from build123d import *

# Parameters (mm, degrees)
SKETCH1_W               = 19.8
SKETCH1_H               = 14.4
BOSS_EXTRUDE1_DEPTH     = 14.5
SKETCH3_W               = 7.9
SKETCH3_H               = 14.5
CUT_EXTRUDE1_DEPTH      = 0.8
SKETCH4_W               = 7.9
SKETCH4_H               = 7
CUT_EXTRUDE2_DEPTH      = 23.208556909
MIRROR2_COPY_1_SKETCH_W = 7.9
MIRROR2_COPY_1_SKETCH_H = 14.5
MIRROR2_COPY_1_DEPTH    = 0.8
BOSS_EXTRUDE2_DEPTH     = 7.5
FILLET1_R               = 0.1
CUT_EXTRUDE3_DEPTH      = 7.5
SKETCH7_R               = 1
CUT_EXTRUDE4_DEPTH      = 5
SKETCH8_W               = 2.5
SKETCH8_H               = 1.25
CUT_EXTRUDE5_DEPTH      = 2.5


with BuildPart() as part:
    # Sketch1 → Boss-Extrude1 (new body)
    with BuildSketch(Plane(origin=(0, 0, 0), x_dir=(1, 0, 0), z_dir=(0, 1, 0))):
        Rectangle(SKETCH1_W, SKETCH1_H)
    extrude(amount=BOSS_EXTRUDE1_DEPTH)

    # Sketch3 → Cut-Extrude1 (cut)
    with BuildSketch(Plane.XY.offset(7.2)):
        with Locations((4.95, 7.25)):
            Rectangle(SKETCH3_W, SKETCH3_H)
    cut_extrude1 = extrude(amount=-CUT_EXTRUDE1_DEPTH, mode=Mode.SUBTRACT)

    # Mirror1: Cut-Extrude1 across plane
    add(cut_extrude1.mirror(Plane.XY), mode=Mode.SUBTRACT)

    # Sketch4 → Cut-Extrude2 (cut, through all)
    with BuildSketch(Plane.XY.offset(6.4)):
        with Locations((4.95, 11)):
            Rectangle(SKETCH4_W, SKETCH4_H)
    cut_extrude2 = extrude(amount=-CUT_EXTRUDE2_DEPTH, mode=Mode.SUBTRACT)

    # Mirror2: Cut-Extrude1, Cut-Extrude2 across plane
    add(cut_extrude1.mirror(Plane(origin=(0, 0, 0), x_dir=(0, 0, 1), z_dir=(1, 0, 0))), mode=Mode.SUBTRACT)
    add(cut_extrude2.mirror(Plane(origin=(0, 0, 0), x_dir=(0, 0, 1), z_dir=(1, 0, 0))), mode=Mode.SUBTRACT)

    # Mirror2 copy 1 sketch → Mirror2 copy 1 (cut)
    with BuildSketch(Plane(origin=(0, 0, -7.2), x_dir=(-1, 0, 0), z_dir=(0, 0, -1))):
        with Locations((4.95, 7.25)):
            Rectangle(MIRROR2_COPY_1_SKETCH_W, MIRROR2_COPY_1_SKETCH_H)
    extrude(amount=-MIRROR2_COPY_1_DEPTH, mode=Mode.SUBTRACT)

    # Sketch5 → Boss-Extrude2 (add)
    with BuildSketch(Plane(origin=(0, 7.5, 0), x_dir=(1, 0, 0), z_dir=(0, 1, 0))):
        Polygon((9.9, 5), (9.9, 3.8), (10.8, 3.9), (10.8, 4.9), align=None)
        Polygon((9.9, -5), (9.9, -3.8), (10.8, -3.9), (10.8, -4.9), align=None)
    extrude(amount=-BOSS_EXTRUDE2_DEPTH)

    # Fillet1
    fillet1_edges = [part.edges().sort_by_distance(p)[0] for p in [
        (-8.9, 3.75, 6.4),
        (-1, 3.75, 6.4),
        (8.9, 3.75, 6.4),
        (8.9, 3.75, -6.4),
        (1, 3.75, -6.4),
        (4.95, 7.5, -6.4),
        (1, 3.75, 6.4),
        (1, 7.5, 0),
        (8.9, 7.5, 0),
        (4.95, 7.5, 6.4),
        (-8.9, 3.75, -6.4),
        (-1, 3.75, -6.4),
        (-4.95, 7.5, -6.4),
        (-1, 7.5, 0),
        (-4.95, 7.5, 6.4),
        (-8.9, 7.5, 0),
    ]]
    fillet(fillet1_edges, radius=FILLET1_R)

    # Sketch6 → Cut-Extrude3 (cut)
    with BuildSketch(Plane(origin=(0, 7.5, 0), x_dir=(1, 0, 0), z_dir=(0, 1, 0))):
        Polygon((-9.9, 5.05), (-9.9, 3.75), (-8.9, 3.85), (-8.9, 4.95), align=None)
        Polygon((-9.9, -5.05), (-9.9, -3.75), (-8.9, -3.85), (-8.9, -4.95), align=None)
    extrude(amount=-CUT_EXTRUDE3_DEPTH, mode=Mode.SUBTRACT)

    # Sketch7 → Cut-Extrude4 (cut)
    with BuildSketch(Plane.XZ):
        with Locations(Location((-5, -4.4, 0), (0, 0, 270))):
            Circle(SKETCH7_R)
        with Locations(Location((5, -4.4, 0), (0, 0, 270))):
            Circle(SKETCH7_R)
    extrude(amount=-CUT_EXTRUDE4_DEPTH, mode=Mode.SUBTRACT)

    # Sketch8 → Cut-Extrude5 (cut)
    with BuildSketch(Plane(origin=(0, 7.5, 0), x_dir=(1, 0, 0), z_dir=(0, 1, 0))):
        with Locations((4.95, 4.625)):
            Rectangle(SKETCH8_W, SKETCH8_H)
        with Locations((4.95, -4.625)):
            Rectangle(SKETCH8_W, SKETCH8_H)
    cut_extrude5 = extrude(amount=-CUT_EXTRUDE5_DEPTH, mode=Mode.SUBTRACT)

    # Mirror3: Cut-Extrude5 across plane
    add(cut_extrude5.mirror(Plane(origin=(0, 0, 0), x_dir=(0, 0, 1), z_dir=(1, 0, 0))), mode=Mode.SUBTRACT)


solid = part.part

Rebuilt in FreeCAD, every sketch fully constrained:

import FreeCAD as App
import Part
import Sketcher


def edges_at(feature, points):
    """Names of the edges that pass closest to the given points."""
    edges = feature.Shape.Edges
    near = lambda p: min(range(len(edges)), key=lambda i: edges[i].distToShape(Part.Vertex(*p))[0])
    return sorted({f"Edge{near(p) + 1}" for p in points})

doc = App.newDocument("Part")
body = doc.addObject("PartDesign::Body", "Body")

# Sketch on XZ plane
sketch1 = body.newObject("Sketcher::SketchObject", "Sketch")
sketch1.AttachmentSupport = (doc.getObject("XZ_Plane"), [""])
sketch1.MapMode = "FlatFace"
sketch1.addGeometry(Part.LineSegment(App.Vector(-10, -7, 0), App.Vector(-10, 7, 0)), False)
sketch1.addGeometry(Part.LineSegment(App.Vector(-10, 7, 0), App.Vector(10, 7, 0)), False)
sketch1.addGeometry(Part.LineSegment(App.Vector(10, 7, 0), App.Vector(10, -7, 0)), False)
sketch1.addGeometry(Part.LineSegment(App.Vector(10, -7, 0), App.Vector(-10, -7, 0)), False)
sketch1.addConstraint(Sketcher.Constraint("Coincident", 0, 2, 1, 1))
sketch1.addConstraint(Sketcher.Constraint("Coincident", 1, 2, 2, 1))
sketch1.addConstraint(Sketcher.Constraint("Coincident", 2, 2, 3, 1))
sketch1.addConstraint(Sketcher.Constraint("Coincident", 3, 2, 0, 1))
sketch1.addConstraint(Sketcher.Constraint("Vertical", 0))
sketch1.addConstraint(Sketcher.Constraint("Horizontal", 1))
sketch1.addConstraint(Sketcher.Constraint("Vertical", 2))
sketch1.addConstraint(Sketcher.Constraint("Horizontal", 3))
sketch1.addConstraint(Sketcher.Constraint("Symmetric", 0, 2, 2, 2, -1, 1))
sketch1.addConstraint(Sketcher.Constraint("DistanceX", 1, 1, 1, 2, 19.8))
sketch1.addConstraint(Sketcher.Constraint("DistanceY", 0, 1, 0, 2, 14.4))
pad1 = body.newObject("PartDesign::Pad", "Pad")
pad1.Profile = sketch1
pad1.Length = 14.5
pad1.Reversed = True

# Sketch on XY plane
sketch2 = body.newObject("Sketcher::SketchObject", "Sketch001")
sketch2.AttachmentSupport = (doc.getObject("XY_Plane"), [""])
sketch2.MapMode = "FlatFace"
sketch2.AttachmentOffset = App.Placement(App.Vector(0, 0, 7.2), App.Rotation())
sketch2.addGeometry(Part.LineSegment(App.Vector(1, 14, 0), App.Vector(1, 0, 0)), False)
sketch2.addGeometry(Part.LineSegment(App.Vector(1, 0, 0), App.Vector(9, 0, 0)), False)
sketch2.addGeometry(Part.LineSegment(App.Vector(9, 0, 0), App.Vector(9, 14, 0)), False)
sketch2.addGeometry(Part.LineSegment(App.Vector(9, 14, 0), App.Vector(1, 14, 0)), False)
sketch2.addConstraint(Sketcher.Constraint("Coincident", 0, 2, 1, 1))
sketch2.addConstraint(Sketcher.Constraint("Coincident", 1, 2, 2, 1))
sketch2.addConstraint(Sketcher.Constraint("Coincident", 2, 2, 3, 1))
sketch2.addConstraint(Sketcher.Constraint("Coincident", 3, 2, 0, 1))
sketch2.addConstraint(Sketcher.Constraint("Vertical", 0))
sketch2.addConstraint(Sketcher.Constraint("Horizontal", 1))
sketch2.addConstraint(Sketcher.Constraint("Vertical", 2))
sketch2.addConstraint(Sketcher.Constraint("Horizontal", 3))
sketch2.addConstraint(Sketcher.Constraint("PointOnObject", 0, 2, -1))
sketch2.addConstraint(Sketcher.Constraint("DistanceX", 1, 1, 1, 2, 7.9))
sketch2.addConstraint(Sketcher.Constraint("DistanceY", 0, 2, 0, 1, 14.5))
sketch2.addConstraint(Sketcher.Constraint("DistanceX", -1, 1, 0, 2, 1.0))
pocket1 = body.newObject("PartDesign::Pocket", "Pocket")
pocket1.Profile = sketch2
pocket1.Length = 0.8
doc.recompute()

mirrored = body.newObject("PartDesign::Mirrored", "Mirrored")
mirrored.Originals = [pocket1]
mirrored.MirrorPlane = (doc.getObject("XY_Plane"), [""])
body.Tip = mirrored

# Sketch on XY plane
sketch3 = body.newObject("Sketcher::SketchObject", "Sketch002")
sketch3.AttachmentSupport = (doc.getObject("XY_Plane"), [""])
sketch3.MapMode = "FlatFace"
sketch3.AttachmentOffset = App.Placement(App.Vector(0, 0, 6.4), App.Rotation())
sketch3.addGeometry(Part.LineSegment(App.Vector(1, 14, 0), App.Vector(1, 8, 0)), False)
sketch3.addGeometry(Part.LineSegment(App.Vector(1, 8, 0), App.Vector(9, 8, 0)), False)
sketch3.addGeometry(Part.LineSegment(App.Vector(9, 8, 0), App.Vector(9, 14, 0)), False)
sketch3.addGeometry(Part.LineSegment(App.Vector(9, 14, 0), App.Vector(1, 14, 0)), False)
sketch3.addConstraint(Sketcher.Constraint("Coincident", 0, 2, 1, 1))
sketch3.addConstraint(Sketcher.Constraint("Coincident", 1, 2, 2, 1))
sketch3.addConstraint(Sketcher.Constraint("Coincident", 2, 2, 3, 1))
sketch3.addConstraint(Sketcher.Constraint("Coincident", 3, 2, 0, 1))
sketch3.addConstraint(Sketcher.Constraint("Vertical", 0))
sketch3.addConstraint(Sketcher.Constraint("Horizontal", 1))
sketch3.addConstraint(Sketcher.Constraint("Vertical", 2))
sketch3.addConstraint(Sketcher.Constraint("Horizontal", 3))
sketch3.addConstraint(Sketcher.Constraint("DistanceY", 0, 2, 0, 1, 7.0))
sketch3.addConstraint(Sketcher.Constraint("DistanceX", 1, 1, 1, 2, 7.9))
sketch3.addConstraint(Sketcher.Constraint("DistanceX", -1, 1, 0, 2, 1.0))
sketch3.addConstraint(Sketcher.Constraint("DistanceY", -1, 1, 0, 2, 7.5))
pocket2 = body.newObject("PartDesign::Pocket", "Pocket001")
pocket2.Profile = sketch3
pocket2.Type = "ThroughAll"
doc.recompute()

mirrored2 = body.newObject("PartDesign::Mirrored", "Mirrored001")
mirrored2.Originals = [pocket1, pocket2]
mirrored2.MirrorPlane = (doc.getObject("YZ_Plane"), [""])
body.Tip = mirrored2

# Sketch on XY plane
sketch4 = body.newObject("Sketcher::SketchObject", "Sketch003")
sketch4.AttachmentSupport = (doc.getObject("XY_Plane"), [""])
sketch4.MapMode = "FlatFace"
sketch4.AttachmentOffset = App.Placement(App.Vector(0, 0, -7.2), App.Rotation())
sketch4.addGeometry(Part.LineSegment(App.Vector(-1, 14, 0), App.Vector(-1, 0, 0)), False)
sketch4.addGeometry(Part.LineSegment(App.Vector(-1, 0, 0), App.Vector(-9, 0, 0)), False)
sketch4.addGeometry(Part.LineSegment(App.Vector(-9, 0, 0), App.Vector(-9, 14, 0)), False)
sketch4.addGeometry(Part.LineSegment(App.Vector(-9, 14, 0), App.Vector(-1, 14, 0)), False)
sketch4.addConstraint(Sketcher.Constraint("Coincident", 0, 2, 1, 1))
sketch4.addConstraint(Sketcher.Constraint("Coincident", 1, 2, 2, 1))
sketch4.addConstraint(Sketcher.Constraint("Coincident", 2, 2, 3, 1))
sketch4.addConstraint(Sketcher.Constraint("Coincident", 3, 2, 0, 1))
sketch4.addConstraint(Sketcher.Constraint("Vertical", 0))
sketch4.addConstraint(Sketcher.Constraint("Horizontal", 1))
sketch4.addConstraint(Sketcher.Constraint("Vertical", 2))
sketch4.addConstraint(Sketcher.Constraint("Horizontal", 3))
sketch4.addConstraint(Sketcher.Constraint("PointOnObject", 0, 2, -1))
sketch4.addConstraint(Sketcher.Constraint("DistanceX", 1, 2, 1, 1, 7.9))
sketch4.addConstraint(Sketcher.Constraint("DistanceY", 0, 2, 0, 1, 14.5))
sketch4.addConstraint(Sketcher.Constraint("DistanceX", 0, 2, -1, 1, 1.0))
pocket3 = body.newObject("PartDesign::Pocket", "Pocket002")
pocket3.Profile = sketch4
pocket3.Length = 0.8
pocket3.Reversed = True

# Sketch on XZ plane
sketch5 = body.newObject("Sketcher::SketchObject", "Sketch004")
sketch5.AttachmentSupport = (doc.getObject("XZ_Plane"), [""])
sketch5.MapMode = "FlatFace"
sketch5.AttachmentOffset = App.Placement(App.Vector(0, 0, -7.5), App.Rotation())
sketch5.addGeometry(Part.LineSegment(App.Vector(9.9, -5, 0), App.Vector(9.9, -3.8, 0)), False)
sketch5.addGeometry(Part.LineSegment(App.Vector(9.9, -3.8, 0), App.Vector(10.8, -3.9, 0)), False)
sketch5.addGeometry(Part.LineSegment(App.Vector(10.8, -3.9, 0), App.Vector(10.8, -4.9, 0)), False)
sketch5.addGeometry(Part.LineSegment(App.Vector(10.8, -4.9, 0), App.Vector(9.9, -5, 0)), False)
sketch5.addGeometry(Part.LineSegment(App.Vector(9.9, 3.8, 0), App.Vector(9.9, 5, 0)), False)
sketch5.addGeometry(Part.LineSegment(App.Vector(9.9, 5, 0), App.Vector(10.8, 4.9, 0)), False)
sketch5.addGeometry(Part.LineSegment(App.Vector(10.8, 4.9, 0), App.Vector(10.8, 3.9, 0)), False)
sketch5.addGeometry(Part.LineSegment(App.Vector(10.8, 3.9, 0), App.Vector(9.9, 3.8, 0)), False)
sketch5.addConstraint(Sketcher.Constraint("Coincident", 0, 2, 1, 1))
sketch5.addConstraint(Sketcher.Constraint("Coincident", 1, 2, 2, 1))
sketch5.addConstraint(Sketcher.Constraint("Coincident", 2, 2, 3, 1))
sketch5.addConstraint(Sketcher.Constraint("Coincident", 3, 2, 0, 1))
sketch5.addConstraint(Sketcher.Constraint("Coincident", 4, 2, 5, 1))
sketch5.addConstraint(Sketcher.Constraint("Coincident", 5, 2, 6, 1))
sketch5.addConstraint(Sketcher.Constraint("Coincident", 6, 2, 7, 1))
sketch5.addConstraint(Sketcher.Constraint("Coincident", 7, 2, 4, 1))
sketch5.addConstraint(Sketcher.Constraint("Vertical", 0))
sketch5.addConstraint(Sketcher.Constraint("Vertical", 2))
sketch5.addConstraint(Sketcher.Constraint("Vertical", 4))
sketch5.addConstraint(Sketcher.Constraint("Vertical", 6))
sketch5.addConstraint(Sketcher.Constraint("Symmetric", 3, 2, 4, 2, -1))
sketch5.addConstraint(Sketcher.Constraint("Symmetric", 2, 2, 5, 2, -1))
sketch5.addConstraint(Sketcher.Constraint("Parallel", 1, 5))
sketch5.addConstraint(Sketcher.Constraint("Parallel", 3, 7))
sketch5.addConstraint(Sketcher.Constraint("Equal", 0, 4))
sketch5.addConstraint(Sketcher.Constraint("DistanceY", 2, 2, 2, 1, 1.0))
sketch5.addConstraint(Sketcher.Constraint("DistanceY", 0, 1, 0, 2, 1.2))
sketch5.addConstraint(Sketcher.Constraint("DistanceY", 3, 2, -1, 1, 5.0))
sketch5.addConstraint(Sketcher.Constraint("DistanceX", -1, 1, 0, 2, 9.9))
sketch5.addConstraint(Sketcher.Constraint("DistanceX", -1, 1, 1, 2, 10.8))
pad2 = body.newObject("PartDesign::Pad", "Pad001")
pad2.Profile = sketch5
pad2.Length = 7.5
doc.recompute()

fillet = body.newObject("PartDesign::Fillet", "Fillet")
fillet.Base = (pad2, edges_at(pad2, [
    (-8.9, 3.75, 6.4),
    (-1, 3.75, 6.4),
    (8.9, 3.75, 6.4),
    (8.9, 3.75, -6.4),
    (1, 3.75, -6.4),
    (4.95, 7.5, -6.4),
    (1, 3.75, 6.4),
    (1, 7.5, 0),
    (8.9, 7.5, 0),
    (4.95, 7.5, 6.4),
    (-8.9, 3.75, -6.4),
    (-1, 3.75, -6.4),
    (-4.95, 7.5, -6.4),
    (-1, 7.5, 0),
    (-4.95, 7.5, 6.4),
    (-8.9, 7.5, 0),
]))
fillet.Radius = 0.1

# Sketch on XZ plane
sketch6 = body.newObject("Sketcher::SketchObject", "Sketch005")
sketch6.AttachmentSupport = (doc.getObject("XZ_Plane"), [""])
sketch6.MapMode = "FlatFace"
sketch6.AttachmentOffset = App.Placement(App.Vector(0, 0, -7.5), App.Rotation())
sketch6.addGeometry(Part.LineSegment(App.Vector(-9.9, -5, 0), App.Vector(-9.9, -3.8, 0)), False)
sketch6.addGeometry(Part.LineSegment(App.Vector(-9.9, -3.8, 0), App.Vector(-8.9, -3.9, 0)), False)
sketch6.addGeometry(Part.LineSegment(App.Vector(-8.9, -3.9, 0), App.Vector(-8.9, -5, 0)), False)
sketch6.addGeometry(Part.LineSegment(App.Vector(-8.9, -5, 0), App.Vector(-9.9, -5, 0)), False)
sketch6.addGeometry(Part.LineSegment(App.Vector(-9.9, 3.8, 0), App.Vector(-9.9, 5, 0)), False)
sketch6.addGeometry(Part.LineSegment(App.Vector(-9.9, 5, 0), App.Vector(-8.9, 5, 0)), False)
sketch6.addGeometry(Part.LineSegment(App.Vector(-8.9, 5, 0), App.Vector(-8.9, 3.9, 0)), False)
sketch6.addGeometry(Part.LineSegment(App.Vector(-8.9, 3.9, 0), App.Vector(-9.9, 3.8, 0)), False)
sketch6.addConstraint(Sketcher.Constraint("Coincident", 0, 2, 1, 1))
sketch6.addConstraint(Sketcher.Constraint("Coincident", 1, 2, 2, 1))
sketch6.addConstraint(Sketcher.Constraint("Coincident", 2, 2, 3, 1))
sketch6.addConstraint(Sketcher.Constraint("Coincident", 3, 2, 0, 1))
sketch6.addConstraint(Sketcher.Constraint("Coincident", 4, 2, 5, 1))
sketch6.addConstraint(Sketcher.Constraint("Coincident", 5, 2, 6, 1))
sketch6.addConstraint(Sketcher.Constraint("Coincident", 6, 2, 7, 1))
sketch6.addConstraint(Sketcher.Constraint("Coincident", 7, 2, 4, 1))
sketch6.addConstraint(Sketcher.Constraint("Vertical", 0))
sketch6.addConstraint(Sketcher.Constraint("Vertical", 2))
sketch6.addConstraint(Sketcher.Constraint("Vertical", 4))
sketch6.addConstraint(Sketcher.Constraint("Vertical", 6))
sketch6.addConstraint(Sketcher.Constraint("Symmetric", 3, 2, 4, 2, -1))
sketch6.addConstraint(Sketcher.Constraint("Symmetric", 2, 2, 5, 2, -1))
sketch6.addConstraint(Sketcher.Constraint("Parallel", 1, 5))
sketch6.addConstraint(Sketcher.Constraint("Parallel", 3, 7))
sketch6.addConstraint(Sketcher.Constraint("Equal", 0, 4))
sketch6.addConstraint(Sketcher.Constraint("DistanceY", 0, 1, 0, 2, 1.3))
sketch6.addConstraint(Sketcher.Constraint("DistanceY", 2, 2, 2, 1, 1.1))
sketch6.addConstraint(Sketcher.Constraint("DistanceX", 0, 2, 1, 2, 1.0))
sketch6.addConstraint(Sketcher.Constraint("DistanceY", 2, 2, 4, 2, 10.0))
sketch6.addConstraint(Sketcher.Constraint("DistanceX", 0, 2, -1, 1, 9.9))
pocket4 = body.newObject("PartDesign::Pocket", "Pocket003")
pocket4.Profile = sketch6
pocket4.Length = 7.5
pocket4.Reversed = True

# Sketch on XZ plane
sketch7 = body.newObject("Sketcher::SketchObject", "Sketch006")
sketch7.AttachmentSupport = (doc.getObject("XZ_Plane"), [""])
sketch7.MapMode = "FlatFace"
sketch7.addGeometry(Part.Circle(App.Vector(-5, -4.4, 0), App.Vector(0, 0, 1), 1), False)
sketch7.addGeometry(Part.Circle(App.Vector(5, -4.4, 0), App.Vector(0, 0, 1), 1), False)
sketch7.addConstraint(Sketcher.Constraint("Equal", 0, 1))
sketch7.addConstraint(Sketcher.Constraint("Symmetric", 0, 3, 1, 3, -2))
sketch7.addConstraint(Sketcher.Constraint("Diameter", 0, 2.0))
sketch7.addConstraint(Sketcher.Constraint("DistanceX", 0, 3, -1, 1, 5.0))
sketch7.addConstraint(Sketcher.Constraint("DistanceY", 0, 3, -1, 1, 4.4))
pocket5 = body.newObject("PartDesign::Pocket", "Pocket004")
pocket5.Profile = sketch7
pocket5.Length = 5

# Sketch on XZ plane
sketch8 = body.newObject("Sketcher::SketchObject", "Sketch007")
sketch8.AttachmentSupport = (doc.getObject("XZ_Plane"), [""])
sketch8.MapMode = "FlatFace"
sketch8.AttachmentOffset = App.Placement(App.Vector(0, 0, -7.5), App.Rotation())
sketch8.addGeometry(Part.LineSegment(App.Vector(3.7, -5.2, 0), App.Vector(3.7, -4, 0)), False)
sketch8.addGeometry(Part.LineSegment(App.Vector(3.7, -4, 0), App.Vector(6.2, -4, 0)), False)
sketch8.addGeometry(Part.LineSegment(App.Vector(6.2, -4, 0), App.Vector(6.2, -5.2, 0)), False)
sketch8.addGeometry(Part.LineSegment(App.Vector(6.2, -5.2, 0), App.Vector(3.7, -5.2, 0)), False)
sketch8.addGeometry(Part.LineSegment(App.Vector(3.7, 4, 0), App.Vector(3.7, 5.2, 0)), False)
sketch8.addGeometry(Part.LineSegment(App.Vector(3.7, 5.2, 0), App.Vector(6.2, 5.2, 0)), False)
sketch8.addGeometry(Part.LineSegment(App.Vector(6.2, 5.2, 0), App.Vector(6.2, 4, 0)), False)
sketch8.addGeometry(Part.LineSegment(App.Vector(6.2, 4, 0), App.Vector(3.7, 4, 0)), False)
sketch8.addConstraint(Sketcher.Constraint("Coincident", 0, 2, 1, 1))
sketch8.addConstraint(Sketcher.Constraint("Coincident", 1, 2, 2, 1))
sketch8.addConstraint(Sketcher.Constraint("Coincident", 2, 2, 3, 1))
sketch8.addConstraint(Sketcher.Constraint("Coincident", 3, 2, 0, 1))
sketch8.addConstraint(Sketcher.Constraint("Coincident", 4, 2, 5, 1))
sketch8.addConstraint(Sketcher.Constraint("Coincident", 5, 2, 6, 1))
sketch8.addConstraint(Sketcher.Constraint("Coincident", 6, 2, 7, 1))
sketch8.addConstraint(Sketcher.Constraint("Coincident", 7, 2, 4, 1))
sketch8.addConstraint(Sketcher.Constraint("Vertical", 0))
sketch8.addConstraint(Sketcher.Constraint("Horizontal", 1))
sketch8.addConstraint(Sketcher.Constraint("Vertical", 2))
sketch8.addConstraint(Sketcher.Constraint("Horizontal", 3))
sketch8.addConstraint(Sketcher.Constraint("Vertical", 4))
sketch8.addConstraint(Sketcher.Constraint("Horizontal", 5))
sketch8.addConstraint(Sketcher.Constraint("Vertical", 6))
sketch8.addConstraint(Sketcher.Constraint("Horizontal", 7))
sketch8.addConstraint(Sketcher.Constraint("Symmetric", 3, 2, 4, 2, -1))
sketch8.addConstraint(Sketcher.Constraint("Symmetric", 1, 2, 6, 2, -1))
sketch8.addConstraint(Sketcher.Constraint("DistanceX", 1, 1, 1, 2, 2.5))
sketch8.addConstraint(Sketcher.Constraint("DistanceY", 0, 2, -1, 1, 4.0))
sketch8.addConstraint(Sketcher.Constraint("DistanceY", 0, 1, 0, 2, 1.25))
sketch8.addConstraint(Sketcher.Constraint("DistanceX", -1, 1, 0, 2, 3.7))
pocket6 = body.newObject("PartDesign::Pocket", "Pocket005")
pocket6.Profile = sketch8
pocket6.Length = 2.5
pocket6.Reversed = True
doc.recompute()

mirrored3 = body.newObject("PartDesign::Mirrored", "Mirrored002")
mirrored3.Originals = [pocket6]
mirrored3.MirrorPlane = (doc.getObject("YZ_Plane"), [""])
body.Tip = mirrored3

doc.recompute()
